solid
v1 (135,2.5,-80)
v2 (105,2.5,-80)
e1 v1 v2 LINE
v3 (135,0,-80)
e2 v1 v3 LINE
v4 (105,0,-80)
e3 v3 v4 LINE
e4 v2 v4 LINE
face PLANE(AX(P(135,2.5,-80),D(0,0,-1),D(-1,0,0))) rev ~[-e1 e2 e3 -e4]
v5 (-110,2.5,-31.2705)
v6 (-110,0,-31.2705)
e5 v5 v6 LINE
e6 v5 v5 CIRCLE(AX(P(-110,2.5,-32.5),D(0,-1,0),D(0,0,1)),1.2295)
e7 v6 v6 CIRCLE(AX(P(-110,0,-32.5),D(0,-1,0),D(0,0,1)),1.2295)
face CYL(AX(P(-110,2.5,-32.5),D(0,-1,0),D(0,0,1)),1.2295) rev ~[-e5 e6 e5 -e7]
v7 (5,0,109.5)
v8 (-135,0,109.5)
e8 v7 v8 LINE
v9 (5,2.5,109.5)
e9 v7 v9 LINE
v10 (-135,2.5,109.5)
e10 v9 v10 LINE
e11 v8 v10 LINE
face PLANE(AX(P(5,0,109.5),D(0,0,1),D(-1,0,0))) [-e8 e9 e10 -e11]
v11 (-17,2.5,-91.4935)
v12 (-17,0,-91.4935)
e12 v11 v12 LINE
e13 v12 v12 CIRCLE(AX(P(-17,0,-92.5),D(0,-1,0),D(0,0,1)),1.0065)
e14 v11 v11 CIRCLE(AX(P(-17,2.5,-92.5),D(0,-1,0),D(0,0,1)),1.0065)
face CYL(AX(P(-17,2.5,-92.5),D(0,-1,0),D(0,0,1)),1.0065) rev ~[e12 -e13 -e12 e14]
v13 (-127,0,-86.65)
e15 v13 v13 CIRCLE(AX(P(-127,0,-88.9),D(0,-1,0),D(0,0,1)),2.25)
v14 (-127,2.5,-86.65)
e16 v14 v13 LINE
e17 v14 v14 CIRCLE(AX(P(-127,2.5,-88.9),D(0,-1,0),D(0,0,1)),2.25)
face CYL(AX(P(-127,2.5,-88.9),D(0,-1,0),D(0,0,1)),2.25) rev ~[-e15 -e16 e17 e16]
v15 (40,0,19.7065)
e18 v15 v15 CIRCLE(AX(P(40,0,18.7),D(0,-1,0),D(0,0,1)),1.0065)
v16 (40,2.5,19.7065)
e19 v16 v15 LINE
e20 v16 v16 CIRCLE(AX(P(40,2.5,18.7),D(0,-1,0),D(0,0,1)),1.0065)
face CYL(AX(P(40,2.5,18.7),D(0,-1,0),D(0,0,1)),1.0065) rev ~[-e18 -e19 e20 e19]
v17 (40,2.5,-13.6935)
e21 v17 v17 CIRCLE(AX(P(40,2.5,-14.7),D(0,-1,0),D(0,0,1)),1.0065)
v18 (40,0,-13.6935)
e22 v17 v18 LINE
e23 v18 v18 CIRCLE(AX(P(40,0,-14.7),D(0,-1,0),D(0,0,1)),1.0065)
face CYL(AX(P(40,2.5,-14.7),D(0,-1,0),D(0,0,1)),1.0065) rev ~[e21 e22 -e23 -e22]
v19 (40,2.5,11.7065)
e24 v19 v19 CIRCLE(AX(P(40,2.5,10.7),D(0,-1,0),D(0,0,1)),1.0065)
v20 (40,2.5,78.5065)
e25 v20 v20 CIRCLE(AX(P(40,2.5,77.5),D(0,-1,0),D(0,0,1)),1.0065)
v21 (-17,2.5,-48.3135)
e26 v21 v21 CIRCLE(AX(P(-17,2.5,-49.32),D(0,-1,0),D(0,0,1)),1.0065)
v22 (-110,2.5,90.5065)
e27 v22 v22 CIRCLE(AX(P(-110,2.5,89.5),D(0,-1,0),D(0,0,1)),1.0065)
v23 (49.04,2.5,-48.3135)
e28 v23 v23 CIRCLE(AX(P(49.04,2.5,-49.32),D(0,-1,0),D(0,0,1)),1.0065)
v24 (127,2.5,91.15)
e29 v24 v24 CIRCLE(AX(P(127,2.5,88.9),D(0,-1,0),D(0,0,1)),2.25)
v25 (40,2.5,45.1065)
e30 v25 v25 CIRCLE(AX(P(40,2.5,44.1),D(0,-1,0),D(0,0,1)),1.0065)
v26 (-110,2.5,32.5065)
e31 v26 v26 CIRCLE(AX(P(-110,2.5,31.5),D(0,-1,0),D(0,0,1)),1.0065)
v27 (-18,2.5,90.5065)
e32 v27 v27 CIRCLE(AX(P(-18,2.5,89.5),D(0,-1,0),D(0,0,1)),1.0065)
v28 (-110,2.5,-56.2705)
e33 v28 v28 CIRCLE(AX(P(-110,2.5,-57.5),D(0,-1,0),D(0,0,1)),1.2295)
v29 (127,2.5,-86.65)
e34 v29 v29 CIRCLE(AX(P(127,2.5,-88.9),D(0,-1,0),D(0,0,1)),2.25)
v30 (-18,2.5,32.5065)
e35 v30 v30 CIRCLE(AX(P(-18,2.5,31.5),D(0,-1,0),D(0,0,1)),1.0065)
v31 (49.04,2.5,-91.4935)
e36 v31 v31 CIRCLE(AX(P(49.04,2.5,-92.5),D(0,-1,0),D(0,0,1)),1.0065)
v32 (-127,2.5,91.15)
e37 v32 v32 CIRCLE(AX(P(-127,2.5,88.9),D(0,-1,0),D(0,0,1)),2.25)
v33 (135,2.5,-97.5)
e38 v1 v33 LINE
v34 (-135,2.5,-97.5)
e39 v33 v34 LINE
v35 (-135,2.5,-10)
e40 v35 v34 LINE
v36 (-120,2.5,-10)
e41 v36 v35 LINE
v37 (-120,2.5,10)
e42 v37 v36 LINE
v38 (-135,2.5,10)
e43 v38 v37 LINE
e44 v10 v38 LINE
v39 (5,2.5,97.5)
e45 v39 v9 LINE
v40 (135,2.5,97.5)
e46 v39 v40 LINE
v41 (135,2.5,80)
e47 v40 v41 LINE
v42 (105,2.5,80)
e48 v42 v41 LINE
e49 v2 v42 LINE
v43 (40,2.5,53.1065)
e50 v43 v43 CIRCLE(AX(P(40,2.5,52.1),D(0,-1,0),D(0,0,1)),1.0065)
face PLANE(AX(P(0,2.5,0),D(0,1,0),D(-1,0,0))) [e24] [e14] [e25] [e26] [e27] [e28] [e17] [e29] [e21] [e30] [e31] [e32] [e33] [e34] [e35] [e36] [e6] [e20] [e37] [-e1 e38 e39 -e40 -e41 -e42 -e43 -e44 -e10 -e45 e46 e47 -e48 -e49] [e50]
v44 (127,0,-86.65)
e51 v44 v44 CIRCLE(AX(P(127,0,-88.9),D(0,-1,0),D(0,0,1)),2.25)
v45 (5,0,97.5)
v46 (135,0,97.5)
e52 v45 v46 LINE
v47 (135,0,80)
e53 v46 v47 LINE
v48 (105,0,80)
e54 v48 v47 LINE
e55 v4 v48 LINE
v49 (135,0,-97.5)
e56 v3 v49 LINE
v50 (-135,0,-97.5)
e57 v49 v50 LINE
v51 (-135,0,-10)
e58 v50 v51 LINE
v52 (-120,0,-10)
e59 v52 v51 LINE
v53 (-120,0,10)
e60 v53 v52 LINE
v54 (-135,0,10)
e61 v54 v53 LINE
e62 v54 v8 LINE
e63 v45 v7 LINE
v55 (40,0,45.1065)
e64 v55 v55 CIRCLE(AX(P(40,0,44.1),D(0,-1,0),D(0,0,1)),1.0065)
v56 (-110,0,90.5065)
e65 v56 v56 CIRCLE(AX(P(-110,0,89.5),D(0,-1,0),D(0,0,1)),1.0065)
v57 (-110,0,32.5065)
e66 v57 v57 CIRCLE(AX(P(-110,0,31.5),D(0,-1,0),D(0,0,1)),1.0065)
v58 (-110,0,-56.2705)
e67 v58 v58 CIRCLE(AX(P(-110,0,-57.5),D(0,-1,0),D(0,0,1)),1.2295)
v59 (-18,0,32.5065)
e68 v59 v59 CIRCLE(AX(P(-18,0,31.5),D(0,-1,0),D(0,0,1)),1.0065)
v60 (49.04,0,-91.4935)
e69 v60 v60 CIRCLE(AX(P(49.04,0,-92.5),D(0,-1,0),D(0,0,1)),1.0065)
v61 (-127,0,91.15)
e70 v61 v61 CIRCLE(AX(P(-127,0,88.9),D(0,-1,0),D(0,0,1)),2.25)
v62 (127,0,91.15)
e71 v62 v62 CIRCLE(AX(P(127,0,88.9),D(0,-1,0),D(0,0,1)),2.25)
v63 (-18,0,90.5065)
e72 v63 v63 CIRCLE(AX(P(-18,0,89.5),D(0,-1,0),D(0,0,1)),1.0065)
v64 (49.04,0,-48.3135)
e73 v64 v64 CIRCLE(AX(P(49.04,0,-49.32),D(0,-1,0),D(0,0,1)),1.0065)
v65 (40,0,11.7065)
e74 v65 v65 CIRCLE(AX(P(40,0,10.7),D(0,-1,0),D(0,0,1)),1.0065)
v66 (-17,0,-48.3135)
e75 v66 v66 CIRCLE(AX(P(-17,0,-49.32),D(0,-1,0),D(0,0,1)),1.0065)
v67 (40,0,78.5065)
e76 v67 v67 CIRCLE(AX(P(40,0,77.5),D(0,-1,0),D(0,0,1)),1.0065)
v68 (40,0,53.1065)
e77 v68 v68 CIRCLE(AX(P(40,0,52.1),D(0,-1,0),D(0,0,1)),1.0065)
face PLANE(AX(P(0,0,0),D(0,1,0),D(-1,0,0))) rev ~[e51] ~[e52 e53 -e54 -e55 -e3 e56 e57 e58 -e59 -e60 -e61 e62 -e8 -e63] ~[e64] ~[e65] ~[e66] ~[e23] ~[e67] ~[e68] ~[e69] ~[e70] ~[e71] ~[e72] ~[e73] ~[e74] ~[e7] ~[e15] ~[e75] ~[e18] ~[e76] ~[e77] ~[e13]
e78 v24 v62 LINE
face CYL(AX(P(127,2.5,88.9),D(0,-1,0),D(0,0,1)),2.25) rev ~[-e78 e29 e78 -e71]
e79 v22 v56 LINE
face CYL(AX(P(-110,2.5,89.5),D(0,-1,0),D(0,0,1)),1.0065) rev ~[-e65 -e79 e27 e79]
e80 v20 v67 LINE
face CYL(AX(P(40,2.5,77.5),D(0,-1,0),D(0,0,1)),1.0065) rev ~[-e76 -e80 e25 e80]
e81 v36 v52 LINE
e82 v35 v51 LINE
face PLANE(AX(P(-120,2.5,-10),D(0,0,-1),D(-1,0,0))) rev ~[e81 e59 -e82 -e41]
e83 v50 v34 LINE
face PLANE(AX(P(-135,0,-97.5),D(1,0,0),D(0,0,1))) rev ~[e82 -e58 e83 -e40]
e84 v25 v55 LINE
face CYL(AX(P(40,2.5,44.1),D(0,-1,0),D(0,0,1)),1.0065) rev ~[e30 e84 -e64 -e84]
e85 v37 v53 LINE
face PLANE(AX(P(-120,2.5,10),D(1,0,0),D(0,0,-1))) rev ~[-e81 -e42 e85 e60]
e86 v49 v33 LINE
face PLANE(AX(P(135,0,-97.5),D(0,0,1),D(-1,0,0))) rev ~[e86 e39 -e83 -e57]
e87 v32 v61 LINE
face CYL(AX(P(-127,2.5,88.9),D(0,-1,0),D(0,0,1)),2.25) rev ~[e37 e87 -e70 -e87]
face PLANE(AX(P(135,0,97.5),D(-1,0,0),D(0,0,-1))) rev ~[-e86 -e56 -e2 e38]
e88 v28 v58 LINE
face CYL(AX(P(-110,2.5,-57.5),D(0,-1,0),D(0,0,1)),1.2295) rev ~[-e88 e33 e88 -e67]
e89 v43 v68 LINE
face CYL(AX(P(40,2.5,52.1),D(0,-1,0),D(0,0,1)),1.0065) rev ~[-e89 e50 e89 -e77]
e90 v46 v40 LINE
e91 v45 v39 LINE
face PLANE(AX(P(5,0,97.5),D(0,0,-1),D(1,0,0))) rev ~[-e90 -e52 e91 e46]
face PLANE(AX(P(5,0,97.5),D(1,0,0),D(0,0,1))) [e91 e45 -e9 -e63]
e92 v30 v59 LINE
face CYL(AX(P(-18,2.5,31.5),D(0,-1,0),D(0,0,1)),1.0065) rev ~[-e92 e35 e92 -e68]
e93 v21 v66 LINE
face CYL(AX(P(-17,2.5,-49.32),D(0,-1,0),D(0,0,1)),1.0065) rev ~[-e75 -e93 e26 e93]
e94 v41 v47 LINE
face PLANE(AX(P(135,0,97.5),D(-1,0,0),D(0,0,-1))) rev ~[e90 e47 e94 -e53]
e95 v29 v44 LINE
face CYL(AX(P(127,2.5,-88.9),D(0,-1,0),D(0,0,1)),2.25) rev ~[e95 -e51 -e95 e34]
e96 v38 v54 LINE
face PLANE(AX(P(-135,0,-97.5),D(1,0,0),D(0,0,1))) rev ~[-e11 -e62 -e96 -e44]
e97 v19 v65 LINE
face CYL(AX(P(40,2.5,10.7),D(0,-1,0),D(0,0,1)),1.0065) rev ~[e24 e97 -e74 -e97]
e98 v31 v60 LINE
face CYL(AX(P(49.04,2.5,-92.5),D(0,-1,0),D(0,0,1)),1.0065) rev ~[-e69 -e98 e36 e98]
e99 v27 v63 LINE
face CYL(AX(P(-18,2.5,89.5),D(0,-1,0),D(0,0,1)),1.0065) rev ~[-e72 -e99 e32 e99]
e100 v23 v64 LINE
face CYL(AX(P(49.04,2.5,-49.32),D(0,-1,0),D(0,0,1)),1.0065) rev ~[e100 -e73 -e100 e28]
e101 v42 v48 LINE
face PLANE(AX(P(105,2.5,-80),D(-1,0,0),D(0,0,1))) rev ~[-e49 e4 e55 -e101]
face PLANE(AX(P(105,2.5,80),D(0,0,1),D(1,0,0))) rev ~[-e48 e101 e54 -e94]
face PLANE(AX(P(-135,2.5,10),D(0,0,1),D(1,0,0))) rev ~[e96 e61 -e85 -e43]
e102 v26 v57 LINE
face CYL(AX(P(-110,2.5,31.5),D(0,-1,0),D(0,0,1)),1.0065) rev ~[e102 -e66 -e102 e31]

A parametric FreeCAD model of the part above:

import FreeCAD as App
import Part
import Sketcher
from FreeCAD import Vector
Q = App.Units.Quantity


def add_polygon(sketch, points):
    """Adds a closed chain of lines whose ends are joined by coincident constraints."""
    first, n = sketch.GeometryCount, len(points)
    for a, b in zip(points, points[1:] + points[:1]):
        sketch.addGeometry(Part.LineSegment(App.Vector(*a, 0), App.Vector(*b, 0)), False)
    for i in range(n):
        sketch.addConstraint(Sketcher.Constraint("Coincident", first + i, 2, first + (i + 1) % n, 1))

doc = App.newDocument("Part")
body = doc.addObject("PartDesign::Body", "Body")

# Sketch on XZ plane
sketch1 = doc.addObject("Sketcher::SketchObject", "Sketch")
body.addObject(sketch1)
sketch1.AttachmentSupport = (doc.XZ_Plane, [""])
sketch1.MapMode = "FlatFace"
add_polygon(sketch1, [(-135, -98), (-135, 110), (5, 110), (5, 98), (135, 98), (135, -98)])  # lines 0-5
sketch1.addConstraint([
    Sketcher.Constraint("Vertical", 0),
    Sketcher.Constraint("Horizontal", 1),
    Sketcher.Constraint("Vertical", 2),
    Sketcher.Constraint("Horizontal", 3),
    Sketcher.Constraint("Vertical", 4),
    Sketcher.Constraint("Horizontal", 5),
    Sketcher.Constraint("Symmetric", 3, 2, 5, 2, -1, 1),
    Sketcher.Constraint("DistanceX", 1, 1, 1, 2, Q("140 mm")),
    Sketcher.Constraint("DistanceX", 5, 2, 5, 1, Q("270 mm")),
    Sketcher.Constraint("DistanceY", 2, 2, 2, 1, Q("12 mm")),
    Sketcher.Constraint("DistanceY", 4, 2, 4, 1, Q("195 mm")),
])
pad1 = doc.addObject("PartDesign::Pad", "Pad")
body.addObject(pad1)
pad1.Profile = sketch1
pad1.Length = 2.5
pad1.Reversed = True

# Sketch on XZ plane
sketch2 = doc.addObject("Sketcher::SketchObject", "Sketch001")
body.addObject(sketch2)
sketch2.AttachmentSupport = (doc.XZ_Plane, [""])
sketch2.MapMode = "FlatFace"
sketch2.AttachmentOffset = App.Placement(Vector(0, 0, -2.5), App.Rotation())
sketch2.addGeometry([
    Part.Circle(Vector(-127, -88.9, 0), Vector(0, 0, 1), 2.2),
    Part.Circle(Vector(127, -88.9, 0), Vector(0, 0, 1), 2.2),
    Part.Circle(Vector(127, 88.9, 0), Vector(0, 0, 1), 2.2),
    Part.Circle(Vector(-127, 88.9, 0), Vector(0, 0, 1), 2.2),
], False)
sketch2.addConstraint([
    Sketcher.Constraint("Equal", 0, 1),
    Sketcher.Constraint("Equal", 1, 2),
    Sketcher.Constraint("Equal", 2, 3),
    Sketcher.Constraint("Symmetric", 0, 3, 2, 3, -1, 1),
    Sketcher.Constraint("Symmetric", 1, 3, 3, 3, -1, 1),
    Sketcher.Constraint("Symmetric", 0, 3, 1, 3, -2),
    Sketcher.Constraint("Diameter", 0, Q("4.5 mm")),
    Sketcher.Constraint("DistanceX", 0, 3, -1, 1, Q("127 mm")),
    Sketcher.Constraint("DistanceY", 0, 3, -1, 1, Q("88.9 mm")),
])
doc.recompute()
hole = doc.addObject("PartDesign::Hole", "Hole")
body.addObject(hole)
hole.Profile = sketch2
hole.ThreadType = "None"
hole.Diameter = 4.5
hole.DepthType = "ThroughAll"
hole.Reversed = True

# Sketch on XZ plane
sketch3 = doc.addObject("Sketcher::SketchObject", "Sketch002")
body.addObject(sketch3)
sketch3.AttachmentSupport = (doc.XZ_Plane, [""])
sketch3.MapMode = "FlatFace"
sketch3.AttachmentOffset = App.Placement(Vector(0, 0, -2.5), App.Rotation())
add_polygon(sketch3, [(135, 80), (135, -80), (105, -80), (105, 80)])  # lines 0-3
add_polygon(sketch3, [(-120, -10), (-135, -10), (-135, 10), (-120, 10)])  # lines 4-7
sketch3.addConstraint([
    Sketcher.Constraint("Vertical", 0),
    Sketcher.Constraint("Horizontal", 1),
    Sketcher.Constraint("Vertical", 2),
    Sketcher.Constraint("Horizontal", 3),
    Sketcher.Constraint("Horizontal", 4),
    Sketcher.Constraint("Vertical", 5),
    Sketcher.Constraint("Horizontal", 6),
    Sketcher.Constraint("Vertical", 7),
    Sketcher.Constraint("DistanceX", 1, 2, 1, 1, Q("30 mm")),
    Sketcher.Constraint("DistanceX", 4, 2, 4, 1, Q("15 mm")),
    Sketcher.Constraint("DistanceY", 0, 2, 0, 1, Q("160 mm")),
    Sketcher.Constraint("DistanceY", 5, 1, 5, 2, Q("20 mm")),
    Sketcher.Constraint("DistanceX", -1, 1, 0, 2, Q("135 mm")),
    Sketcher.Constraint("DistanceY", 0, 2, -1, 1, Q("80 mm")),
    Sketcher.Constraint("DistanceX", 4, 2, -1, 1, Q("135 mm")),
    Sketcher.Constraint("DistanceY", 4, 2, -1, 1, Q("10 mm")),
])
pocket1 = doc.addObject("PartDesign::Pocket", "Pocket")
body.addObject(pocket1)
pocket1.Profile = sketch3
pocket1.Type = "ThroughAll"
pocket1.Reversed = True

# Sketch on XZ plane
sketch4 = doc.addObject("Sketcher::SketchObject", "Sketch003")
body.addObject(sketch4)
sketch4.AttachmentSupport = (doc.XZ_Plane, [""])
sketch4.MapMode = "FlatFace"
sketch4.AttachmentOffset = App.Placement(Vector(0, 0, -2.5), App.Rotation())
sketch4.addGeometry([
    Part.Circle(Vector(-110, -57.5, 0), Vector(0, 0, 1), 1.2),
    Part.Circle(Vector(-110, -32.5, 0), Vector(0, 0, 1), 1.2),
], False)
sketch4.addConstraint([
    Sketcher.Constraint("Equal", 0, 1),
    Sketcher.Constraint("Vertical", 0, 3, 1, 3),
    Sketcher.Constraint("Diameter", 0, Q("2.459 mm")),
    Sketcher.Constraint("DistanceX", 0, 3, -1, 1, Q("110 mm")),
    Sketcher.Constraint("DistanceY", 0, 3, 1, 3, Q("25 mm")),
    Sketcher.Constraint("DistanceY", 0, 3, -1, 1, Q("57.5 mm")),
])
doc.recompute()
hole2 = doc.addObject("PartDesign::Hole", "Hole001")
body.addObject(hole2)
hole2.Profile = sketch4
hole2.ThreadType = "None"
hole2.Diameter = 2.459
hole2.DepthType = "ThroughAll"
hole2.Reversed = True

# Sketch on XZ plane
sketch5 = doc.addObject("Sketcher::SketchObject", "Sketch004")
body.addObject(sketch5)
sketch5.AttachmentSupport = (doc.XZ_Plane, [""])
sketch5.MapMode = "FlatFace"
sketch5.AttachmentOffset = App.Placement(Vector(0, 0, -2.5), App.Rotation())
sketch5.addGeometry([
    Part.Circle(Vector(-17, -92.5, 0), Vector(0, 0, 1), 1),
    Part.Circle(Vector(49, -92.5, 0), Vector(0, 0, 1), 1),
    Part.Circle(Vector(49, -49.3, 0), Vector(0, 0, 1), 1),
    Part.Circle(Vector(-17, -49.3, 0), Vector(0, 0, 1), 1),
], False)
sketch5.addConstraint([
    Sketcher.Constraint("Equal", 0, 1),
    Sketcher.Constraint("Equal", 1, 2),
    Sketcher.Constraint("Equal", 2, 3),
    Sketcher.Constraint("Horizontal", 0, 3, 1, 3),
    Sketcher.Constraint("Horizontal", 2, 3, 3, 3),
    Sketcher.Constraint("Vertical", 1, 3, 2, 3),
    Sketcher.Constraint("Vertical", 0, 3, 3, 3),
    Sketcher.Constraint("Diameter", 0, Q("2.013 mm")),
    Sketcher.Constraint("DistanceX", 0, 3, -1, 1, Q("17 mm")),
    Sketcher.Constraint("DistanceY", 0, 3, -1, 1, Q("92.5 mm")),
    Sketcher.Constraint("DistanceX", -1, 1, 1, 3, Q("49.04 mm")),
    Sketcher.Constraint("DistanceY", 2, 3, -1, 1, Q("49.32 mm")),
])
doc.recompute()
hole3 = doc.addObject("PartDesign::Hole", "Hole002")
body.addObject(hole3)
hole3.Profile = sketch5
hole3.ThreadType = "None"
hole3.Diameter = 2.013
hole3.DepthType = "ThroughAll"
hole3.Reversed = True

# Sketch on XZ plane
sketch6 = doc.addObject("Sketcher::SketchObject", "Sketch005")
body.addObject(sketch6)
sketch6.AttachmentSupport = (doc.XZ_Plane, [""])
sketch6.MapMode = "FlatFace"
sketch6.AttachmentOffset = App.Placement(Vector(0, 0, -2.5), App.Rotation())
sketch6.addGeometry([
    Part.Circle(Vector(-18, 89.5, 0), Vector(0, 0, 1), 1),
    Part.Circle(Vector(-18, 31.5, 0), Vector(0, 0, 1), 1),
    Part.Circle(Vector(-110, 89.5, 0), Vector(0, 0, 1), 1),
    Part.Circle(Vector(-110, 31.5, 0), Vector(0, 0, 1), 1),
], False)
sketch6.addConstraint([
    Sketcher.Constraint("Equal", 0, 1),
    Sketcher.Constraint("Equal", 1, 2),
    Sketcher.Constraint("Equal", 2, 3),
    Sketcher.Constraint("Horizontal", 0, 3, 2, 3),
    Sketcher.Constraint("Horizontal", 1, 3, 3, 3),
    Sketcher.Constraint("Vertical", 0, 3, 1, 3),
    Sketcher.Constraint("Vertical", 2, 3, 3, 3),
    Sketcher.Constraint("Diameter", 0, Q("2.013 mm")),
    Sketcher.Constraint("DistanceX", 0, 3, -1, 1, Q("18 mm")),
    Sketcher.Constraint("DistanceX", 2, 3, -1, 1, Q("110 mm")),
    Sketcher.Constraint("DistanceY", 1, 3, 0, 3, Q("58 mm")),
    Sketcher.Constraint("DistanceY", -1, 1, 0, 3, Q("89.5 mm")),
])
doc.recompute()
hole4 = doc.addObject("PartDesign::Hole", "Hole003")
body.addObject(hole4)
hole4.Profile = sketch6
hole4.ThreadType = "None"
hole4.Diameter = 2.013
hole4.DepthType = "ThroughAll"
hole4.Reversed = True

# Sketch on XZ plane
sketch7 = doc.addObject("Sketcher::SketchObject", "Sketch006")
body.addObject(sketch7)
sketch7.AttachmentSupport = (doc.XZ_Plane, [""])
sketch7.MapMode = "FlatFace"
sketch7.AttachmentOffset = App.Placement(Vector(0, 0, -2.5), App.Rotation())
sketch7.addGeometry([
    Part.Circle(Vector(40, -14.7, 0), Vector(0, 0, 1), 1),  # 0
    Part.Circle(Vector(40, 10.7, 0), Vector(0, 0, 1), 1),  # 1
    Part.Circle(Vector(40, 18.7, 0), Vector(0, 0, 1), 1),  # 2
    Part.Circle(Vector(40, 44.1, 0), Vector(0, 0, 1), 1),  # 3
    Part.Circle(Vector(40, 52.1, 0), Vector(0, 0, 1), 1),  # 4
    Part.Circle(Vector(40, 77.5, 0), Vector(0, 0, 1), 1),  # 5
], False)
sketch7.addConstraint([
    Sketcher.Constraint("Equal", 0, 1),
    Sketcher.Constraint("Equal", 1, 2),
    Sketcher.Constraint("Equal", 2, 3),
    Sketcher.Constraint("Equal", 3, 4),
    Sketcher.Constraint("Equal", 4, 5),
    Sketcher.Constraint("Vertical", 0, 3, 1, 3),
    Sketcher.Constraint("Vertical", 1, 3, 2, 3),
    Sketcher.Constraint("Vertical", 2, 3, 3, 3),
    Sketcher.Constraint("Vertical", 3, 3, 4, 3),
    Sketcher.Constraint("Vertical", 4, 3, 5, 3),
    Sketcher.Constraint("Diameter", 0, Q("2.013 mm")),
    Sketcher.Constraint("DistanceX", -1, 1, 0, 3, Q("40 mm")),
    Sketcher.Constraint("DistanceY", 1, 3, 2, 3, Q("8 mm")),
    Sketcher.Constraint("DistanceY", 3, 3, 4, 3, Q("8 mm")),
    Sketcher.Constraint("DistanceY", 0, 3, -1, 1, Q("14.7 mm")),
    Sketcher.Constraint("DistanceY", -1, 1, 1, 3, Q("10.7 mm")),
    Sketcher.Constraint("DistanceY", -1, 1, 3, 3, Q("44.1 mm")),
    Sketcher.Constraint("DistanceY", -1, 1, 5, 3, Q("77.5 mm")),
])
doc.recompute()
hole5 = doc.addObject("PartDesign::Hole", "Hole004")
body.addObject(hole5)
hole5.Profile = sketch7
hole5.ThreadType = "None"
hole5.Diameter = 2.013
hole5.DepthType = "ThroughAll"
hole5.Reversed = True

doc.recompute()
